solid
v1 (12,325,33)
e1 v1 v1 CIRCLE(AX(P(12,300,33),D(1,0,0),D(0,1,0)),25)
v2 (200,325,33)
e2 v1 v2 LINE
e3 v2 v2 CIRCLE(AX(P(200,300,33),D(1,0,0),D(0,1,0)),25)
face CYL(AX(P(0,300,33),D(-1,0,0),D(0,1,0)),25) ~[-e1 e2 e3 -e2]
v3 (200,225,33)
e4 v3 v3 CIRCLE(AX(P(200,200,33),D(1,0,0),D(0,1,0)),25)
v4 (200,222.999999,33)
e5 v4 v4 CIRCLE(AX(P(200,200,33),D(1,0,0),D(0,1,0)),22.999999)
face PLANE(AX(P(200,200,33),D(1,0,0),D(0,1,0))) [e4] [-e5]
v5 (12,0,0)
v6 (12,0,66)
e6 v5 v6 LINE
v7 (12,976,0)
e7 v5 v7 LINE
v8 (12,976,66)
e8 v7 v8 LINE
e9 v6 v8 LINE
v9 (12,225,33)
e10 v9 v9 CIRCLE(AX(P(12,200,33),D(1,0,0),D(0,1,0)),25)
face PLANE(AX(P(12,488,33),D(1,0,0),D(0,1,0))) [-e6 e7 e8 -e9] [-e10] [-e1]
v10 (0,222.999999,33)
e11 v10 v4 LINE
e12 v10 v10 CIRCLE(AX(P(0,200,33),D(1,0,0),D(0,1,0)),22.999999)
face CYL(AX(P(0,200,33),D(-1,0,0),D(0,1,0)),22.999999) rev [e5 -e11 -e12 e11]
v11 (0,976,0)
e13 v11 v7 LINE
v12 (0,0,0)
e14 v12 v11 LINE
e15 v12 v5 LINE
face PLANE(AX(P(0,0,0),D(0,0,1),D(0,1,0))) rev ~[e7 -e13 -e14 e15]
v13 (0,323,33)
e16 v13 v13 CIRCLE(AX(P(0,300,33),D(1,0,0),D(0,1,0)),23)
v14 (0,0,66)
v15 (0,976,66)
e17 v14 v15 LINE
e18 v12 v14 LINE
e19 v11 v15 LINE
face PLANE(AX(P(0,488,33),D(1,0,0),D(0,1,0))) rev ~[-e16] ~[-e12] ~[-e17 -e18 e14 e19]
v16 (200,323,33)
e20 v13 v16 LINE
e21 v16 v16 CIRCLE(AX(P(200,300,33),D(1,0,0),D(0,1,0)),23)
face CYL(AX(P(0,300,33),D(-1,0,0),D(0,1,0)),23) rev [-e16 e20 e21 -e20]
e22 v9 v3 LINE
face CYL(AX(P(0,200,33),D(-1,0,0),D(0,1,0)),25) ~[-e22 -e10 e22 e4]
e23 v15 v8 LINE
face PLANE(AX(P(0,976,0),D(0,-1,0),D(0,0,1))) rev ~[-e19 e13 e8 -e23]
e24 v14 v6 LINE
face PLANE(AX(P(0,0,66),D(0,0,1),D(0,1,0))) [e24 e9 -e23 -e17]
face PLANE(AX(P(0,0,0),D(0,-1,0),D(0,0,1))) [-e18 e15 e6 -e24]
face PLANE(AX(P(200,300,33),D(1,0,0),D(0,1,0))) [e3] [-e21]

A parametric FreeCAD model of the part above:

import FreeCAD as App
import Part
import Sketcher
Q = App.Units.Quantity


def add_polygon(sketch, points):
    """Adds a closed chain of lines whose ends are joined by coincident constraints."""
    first, n = sketch.GeometryCount, len(points)
    for a, b in zip(points, points[1:] + points[:1]):
        sketch.addGeometry(Part.LineSegment(App.Vector(*a, 0), App.Vector(*b, 0)), False)
    for i in range(n):
        sketch.addConstraint(Sketcher.Constraint("Coincident", first + i, 2, first + (i + 1) % n, 1))

doc = App.newDocument("Part")
body = doc.addObject("PartDesign::Body", "Body")

# Sketch on YZ plane
sketch1 = body.newObject("Sketcher::SketchObject", "Sketch")
sketch1.AttachmentSupport = (doc.getObject("YZ_Plane"), [""])
sketch1.MapMode = "FlatFace"
add_polygon(sketch1, [(0, 66), (0, 0), (976, 0), (976, 66)])  # lines 0-3
sketch1.addGeometry(Part.Circle(App.Vector(200, 33, 0), App.Vector(0, 0, 1), 25), False)  # 4
sketch1.addGeometry(Part.Circle(App.Vector(300, 33, 0), App.Vector(0, 0, 1), 25), False)  # 5
sketch1.addConstraint(Sketcher.Constraint("Vertical", 0))
sketch1.addConstraint(Sketcher.Constraint("Horizontal", 1))
sketch1.addConstraint(Sketcher.Constraint("Vertical", 2))
sketch1.addConstraint(Sketcher.Constraint("Horizontal", 3))
sketch1.addConstraint(Sketcher.Constraint("Coincident", 0, 2, -1, 1))
sketch1.addConstraint(Sketcher.Constraint("Equal", 4, 5))
sketch1.addConstraint(Sketcher.Constraint("Horizontal", 4, 3, 5, 3))
sketch1.addConstraint(Sketcher.Constraint("Diameter", 4, Q("50 mm")))
sketch1.addConstraint(Sketcher.Constraint("DistanceX", 1, 1, 1, 2, Q("976 mm")))
sketch1.addConstraint(Sketcher.Constraint("DistanceY", 0, 2, 0, 1, Q("66 mm")))
sketch1.addConstraint(Sketcher.Constraint("DistanceX", -1, 1, 4, 3, Q("200 mm")))
sketch1.addConstraint(Sketcher.Constraint("DistanceY", -1, 1, 4, 3, Q("33 mm")))
sketch1.addConstraint(Sketcher.Constraint("DistanceX", -1, 1, 5, 3, Q("300 mm")))
pad1 = body.newObject("PartDesign::Pad", "Pad")
pad1.Profile = sketch1
pad1.Length = 12

# Sketch on YZ plane
sketch2 = body.newObject("Sketcher::SketchObject", "Sketch001")
sketch2.AttachmentSupport = (doc.getObject("YZ_Plane"), [""])
sketch2.MapMode = "FlatFace"
sketch2.addGeometry(Part.Circle(App.Vector(200, 33, 0), App.Vector(0, 0, 1), 25), False)
sketch2.addGeometry(Part.Circle(App.Vector(200, 33, 0), App.Vector(0, 0, 1), 23), False)
sketch2.addConstraint(Sketcher.Constraint("Coincident", 1, 3, 0, 3))
sketch2.addConstraint(Sketcher.Constraint("Diameter", 0, Q("50 mm")))
sketch2.addConstraint(Sketcher.Constraint("DistanceX", -1, 1, 0, 3, Q("200 mm")))
sketch2.addConstraint(Sketcher.Constraint("DistanceY", -1, 1, 0, 3, Q("33 mm")))
sketch2.addConstraint(Sketcher.Constraint("Diameter", 1, Q("45.999998 mm")))
pad2 = body.newObject("PartDesign::Pad", "Pad001")
pad2.Profile = sketch2
pad2.Length = 200

# Sketch on YZ plane
sketch3 = body.newObject("Sketcher::SketchObject", "Sketch002")
sketch3.AttachmentSupport = (doc.getObject("YZ_Plane"), [""])
sketch3.MapMode = "FlatFace"
sketch3.addGeometry(Part.Circle(App.Vector(300, 33, 0), App.Vector(0, 0, 1), 25), False)
sketch3.addGeometry(Part.Circle(App.Vector(300, 33, 0), App.Vector(0, 0, 1), 23), False)
sketch3.addConstraint(Sketcher.Constraint("Coincident", 1, 3, 0, 3))
sketch3.addConstraint(Sketcher.Constraint("Diameter", 0, Q("50 mm")))
sketch3.addConstraint(Sketcher.Constraint("Diameter", 1, Q("46 mm")))
sketch3.addConstraint(Sketcher.Constraint("DistanceX", -1, 1, 0, 3, Q("300 mm")))
sketch3.addConstraint(Sketcher.Constraint("DistanceY", -1, 1, 0, 3, Q("33 mm")))
pad3 = body.newObject("PartDesign::Pad", "Pad002")
pad3.Profile = sketch3
pad3.Length = 200

doc.recompute()
